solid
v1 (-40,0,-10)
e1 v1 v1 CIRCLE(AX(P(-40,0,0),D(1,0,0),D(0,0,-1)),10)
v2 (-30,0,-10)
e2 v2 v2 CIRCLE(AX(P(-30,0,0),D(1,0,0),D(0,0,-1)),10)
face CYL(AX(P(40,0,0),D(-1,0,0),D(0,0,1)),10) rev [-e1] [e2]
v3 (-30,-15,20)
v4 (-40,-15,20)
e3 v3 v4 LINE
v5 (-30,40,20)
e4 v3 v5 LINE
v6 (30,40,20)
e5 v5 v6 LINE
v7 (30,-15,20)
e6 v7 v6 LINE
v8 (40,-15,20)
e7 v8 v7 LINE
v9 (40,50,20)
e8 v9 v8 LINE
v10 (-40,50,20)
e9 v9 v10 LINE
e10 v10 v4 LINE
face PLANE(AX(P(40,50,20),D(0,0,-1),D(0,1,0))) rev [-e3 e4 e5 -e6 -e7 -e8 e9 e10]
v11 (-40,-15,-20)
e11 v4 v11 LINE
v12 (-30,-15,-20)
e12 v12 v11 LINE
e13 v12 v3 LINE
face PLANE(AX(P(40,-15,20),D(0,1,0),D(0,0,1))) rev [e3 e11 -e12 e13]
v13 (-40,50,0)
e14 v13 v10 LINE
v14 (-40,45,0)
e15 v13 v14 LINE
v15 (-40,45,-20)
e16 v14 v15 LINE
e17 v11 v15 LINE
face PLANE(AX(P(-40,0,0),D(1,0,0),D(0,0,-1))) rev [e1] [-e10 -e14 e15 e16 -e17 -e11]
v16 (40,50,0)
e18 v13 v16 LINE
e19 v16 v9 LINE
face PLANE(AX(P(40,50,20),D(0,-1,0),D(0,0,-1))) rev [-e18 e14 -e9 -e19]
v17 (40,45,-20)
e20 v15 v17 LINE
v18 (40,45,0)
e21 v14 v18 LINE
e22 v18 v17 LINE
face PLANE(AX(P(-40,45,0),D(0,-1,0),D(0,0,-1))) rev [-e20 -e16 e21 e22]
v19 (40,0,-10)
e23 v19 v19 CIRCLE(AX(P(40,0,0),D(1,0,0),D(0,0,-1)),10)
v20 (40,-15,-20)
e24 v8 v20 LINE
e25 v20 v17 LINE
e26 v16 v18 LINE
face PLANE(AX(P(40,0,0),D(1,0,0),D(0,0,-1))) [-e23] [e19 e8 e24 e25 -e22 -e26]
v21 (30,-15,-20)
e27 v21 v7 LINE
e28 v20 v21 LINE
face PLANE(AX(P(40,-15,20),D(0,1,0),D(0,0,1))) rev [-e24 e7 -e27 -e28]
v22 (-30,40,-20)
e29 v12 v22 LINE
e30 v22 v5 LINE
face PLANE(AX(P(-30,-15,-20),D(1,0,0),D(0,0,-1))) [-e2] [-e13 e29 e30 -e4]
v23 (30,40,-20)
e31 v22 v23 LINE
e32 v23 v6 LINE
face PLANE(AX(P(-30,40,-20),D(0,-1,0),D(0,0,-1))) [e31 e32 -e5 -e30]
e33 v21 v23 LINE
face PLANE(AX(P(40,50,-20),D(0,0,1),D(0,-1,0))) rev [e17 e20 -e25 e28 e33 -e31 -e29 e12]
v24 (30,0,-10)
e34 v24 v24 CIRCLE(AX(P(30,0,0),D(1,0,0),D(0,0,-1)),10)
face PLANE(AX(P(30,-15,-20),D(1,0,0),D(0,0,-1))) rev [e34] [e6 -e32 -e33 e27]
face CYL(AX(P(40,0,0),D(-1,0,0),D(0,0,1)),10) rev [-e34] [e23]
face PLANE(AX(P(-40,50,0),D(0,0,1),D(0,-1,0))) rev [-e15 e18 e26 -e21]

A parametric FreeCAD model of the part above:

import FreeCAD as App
import Part
import Sketcher

V = App.Vector
Q = App.Units.Quantity


def add_polygon(sketch, points):
    """Adds a closed chain of lines whose ends are joined by coincident constraints."""
    first, n = sketch.GeometryCount, len(points)
    for a, b in zip(points, points[1:] + points[:1]):
        sketch.addGeometry(Part.LineSegment(App.Vector(*a, 0), App.Vector(*b, 0)), False)
    for i in range(n):
        sketch.addConstraint(Sketcher.Constraint("Coincident", first + i, 2, first + (i + 1) % n, 1))

doc = App.newDocument("Part")
params = doc.addObject("Spreadsheet::Sheet", "Params")
for row, (alias, value) in enumerate([
    ("sketch1_diameter", "20 mm"),
    ("sketch1_width", "65 mm"),
    ("sketch1_height", "40 mm"),
    ("pad1_length", "80 mm"),
    ("sketch2_width", "60 mm"),
    ("sketch2_height", "55 mm"),
    ("sketch3_width", "5 mm"),
    ("sketch3_height", "20 mm"),
], start=1):
    params.set(f"A{row}", alias)
    params.set(f"B{row}", "=" + value)
    params.setAlias(f"B{row}", alias)

body = doc.addObject("PartDesign::Body", "Body")

# Sketch on YZ plane
sketch1 = doc.addObject("Sketcher::SketchObject", "Sketch")
body.addObject(sketch1)
sketch1.AttachmentSupport = (doc.YZ_Plane, [""])
sketch1.MapMode = "FlatFace"
add_polygon(sketch1, [(50, 20), (-15, 20), (-15, -20), (50, -20)])  # lines 0-3
sketch1.addGeometry(Part.Circle(V(0, 0, 0), V(0, 0, 1), 10), False)  # 4
sketch1.addConstraint([
    Sketcher.Constraint("Horizontal", 0),
    Sketcher.Constraint("Vertical", 1),
    Sketcher.Constraint("Horizontal", 2),
    Sketcher.Constraint("Vertical", 3),
    Sketcher.Constraint("Coincident", 4, 3, -1, 1),
    Sketcher.Constraint("Diameter", 4, Q("20 mm")),
    Sketcher.Constraint("DistanceX", 0, 2, 0, 1, Q("65 mm")),
    Sketcher.Constraint("DistanceY", 1, 2, 1, 1, Q("40 mm")),
    Sketcher.Constraint("DistanceX", 0, 2, -1, 1, Q("15 mm")),
    Sketcher.Constraint("DistanceY", -1, 1, 0, 2, Q("20 mm")),
])
sketch1.setExpression("Constraints[9]", "Params.sketch1_diameter")
sketch1.setExpression("Constraints[10]", "Params.sketch1_width")
sketch1.setExpression("Constraints[11]", "Params.sketch1_height")
pad1 = doc.addObject("PartDesign::Pad", "Pad")
body.addObject(pad1)
pad1.Profile = sketch1
pad1.setExpression("Length", "Params.pad1_length")
pad1.Midplane = True

# Sketch on XY plane
sketch2 = doc.addObject("Sketcher::SketchObject", "Sketch001")
body.addObject(sketch2)
sketch2.AttachmentSupport = (doc.XY_Plane, [""])
sketch2.MapMode = "FlatFace"
add_polygon(sketch2, [(-30, 40), (-30, -15), (30, -15), (30, 40)])  # lines 0-3
sketch2.addConstraint([
    Sketcher.Constraint("Vertical", 0),
    Sketcher.Constraint("Horizontal", 1),
    Sketcher.Constraint("Vertical", 2),
    Sketcher.Constraint("Horizontal", 3),
    Sketcher.Constraint("DistanceX", 1, 1, 1, 2, Q("60 mm")),
    Sketcher.Constraint("DistanceY", 0, 2, 0, 1, Q("55 mm")),
    Sketcher.Constraint("DistanceX", 0, 2, -1, 1, Q("30 mm")),
    Sketcher.Constraint("DistanceY", 0, 2, -1, 1, Q("15 mm")),
])
sketch2.setExpression("Constraints[8]", "Params.sketch2_width")
sketch2.setExpression("Constraints[9]", "Params.sketch2_height")
pocket1 = doc.addObject("PartDesign::Pocket", "Pocket")
body.addObject(pocket1)
pocket1.Profile = sketch2
pocket1.Type = "ThroughAll"
pocket1.Midplane = True

# Sketch on YZ plane
sketch3 = doc.addObject("Sketcher::SketchObject", "Sketch002")
body.addObject(sketch3)
sketch3.AttachmentSupport = (doc.YZ_Plane, [""])
sketch3.MapMode = "FlatFace"
add_polygon(sketch3, [(50, 0), (45, 0), (45, -20), (50, -20)])  # lines 0-3
sketch3.addConstraint([
    Sketcher.Constraint("Horizontal", 0),
    Sketcher.Constraint("Vertical", 1),
    Sketcher.Constraint("Horizontal", 2),
    Sketcher.Constraint("Vertical", 3),
    Sketcher.Constraint("PointOnObject", 0, 2, -1),
    Sketcher.Constraint("DistanceX", 0, 2, 0, 1, Q("5 mm")),
    Sketcher.Constraint("DistanceY", 1, 2, 1, 1, Q("20 mm")),
    Sketcher.Constraint("DistanceX", -1, 1, 0, 2, Q("45 mm")),
])
sketch3.setExpression("Constraints[9]", "Params.sketch3_width")
sketch3.setExpression("Constraints[10]", "Params.sketch3_height")
pocket2 = doc.addObject("PartDesign::Pocket", "Pocket001")
body.addObject(pocket2)
pocket2.Profile = sketch3
pocket2.Type = "ThroughAll"
pocket2.Midplane = True

doc.recompute()
